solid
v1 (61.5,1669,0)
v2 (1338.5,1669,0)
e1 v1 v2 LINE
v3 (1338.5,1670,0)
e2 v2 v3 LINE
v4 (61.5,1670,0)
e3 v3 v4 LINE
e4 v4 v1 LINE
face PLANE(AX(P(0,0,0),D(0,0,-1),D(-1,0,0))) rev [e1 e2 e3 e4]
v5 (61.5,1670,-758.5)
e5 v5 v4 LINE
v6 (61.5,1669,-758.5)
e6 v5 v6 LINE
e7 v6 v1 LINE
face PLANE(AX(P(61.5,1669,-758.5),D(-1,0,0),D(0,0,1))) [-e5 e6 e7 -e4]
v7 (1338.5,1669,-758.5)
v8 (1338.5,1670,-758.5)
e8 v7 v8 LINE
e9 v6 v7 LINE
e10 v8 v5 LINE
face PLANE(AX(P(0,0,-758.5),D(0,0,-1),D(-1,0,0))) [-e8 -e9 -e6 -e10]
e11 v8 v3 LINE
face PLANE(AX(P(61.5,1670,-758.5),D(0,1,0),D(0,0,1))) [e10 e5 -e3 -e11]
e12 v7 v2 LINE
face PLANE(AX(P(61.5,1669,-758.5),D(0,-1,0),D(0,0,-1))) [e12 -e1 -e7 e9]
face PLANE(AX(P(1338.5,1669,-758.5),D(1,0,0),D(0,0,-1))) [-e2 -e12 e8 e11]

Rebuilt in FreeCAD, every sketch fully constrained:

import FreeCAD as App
import Part
import Sketcher
from FreeCAD import Vector
Q = App.Units.Quantity


def add_polygon(sketch, points):
    """Adds a closed chain of lines whose ends are joined by coincident constraints."""
    first, n = sketch.GeometryCount, len(points)
    for a, b in zip(points, points[1:] + points[:1]):
        sketch.addGeometry(Part.LineSegment(App.Vector(*a, 0), App.Vector(*b, 0)), False)
    for i in range(n):
        sketch.addConstraint(Sketcher.Constraint("Coincident", first + i, 2, first + (i + 1) % n, 1))

doc = App.newDocument("Part")
body = doc.addObject("PartDesign::Body", "Body")

# Sketch on XY plane
sketch1 = body.newObject("Sketcher::SketchObject", "Sketch")
sketch1.AttachmentSupport = (doc.getObject("XY_Plane"), [""])
sketch1.MapMode = "FlatFace"
add_polygon(sketch1, [(61.5, 1670), (61.5, 1669), (1338.5, 1669), (1338.5, 1670)])  # lines 0-3
sketch1.addConstraint([
    Sketcher.Constraint("Vertical", 0),
    Sketcher.Constraint("Horizontal", 1),
    Sketcher.Constraint("Vertical", 2),
    Sketcher.Constraint("Horizontal", 3),
    Sketcher.Constraint("DistanceX", 1, 1, 1, 2, Q("1277 mm")),
    Sketcher.Constraint("DistanceY", 0, 2, 0, 1, Q("1 mm")),
    Sketcher.Constraint("DistanceY", -1, 1, 0, 2, Q("1669 mm")),
    Sketcher.Constraint("DistanceX", -1, 1, 0, 2, Q("61.5 mm")),
])
pad1 = body.newObject("PartDesign::Pad", "Pad")
pad1.Profile = sketch1
pad1.Length = 758.5
pad1.Reversed = True

doc.recompute()
